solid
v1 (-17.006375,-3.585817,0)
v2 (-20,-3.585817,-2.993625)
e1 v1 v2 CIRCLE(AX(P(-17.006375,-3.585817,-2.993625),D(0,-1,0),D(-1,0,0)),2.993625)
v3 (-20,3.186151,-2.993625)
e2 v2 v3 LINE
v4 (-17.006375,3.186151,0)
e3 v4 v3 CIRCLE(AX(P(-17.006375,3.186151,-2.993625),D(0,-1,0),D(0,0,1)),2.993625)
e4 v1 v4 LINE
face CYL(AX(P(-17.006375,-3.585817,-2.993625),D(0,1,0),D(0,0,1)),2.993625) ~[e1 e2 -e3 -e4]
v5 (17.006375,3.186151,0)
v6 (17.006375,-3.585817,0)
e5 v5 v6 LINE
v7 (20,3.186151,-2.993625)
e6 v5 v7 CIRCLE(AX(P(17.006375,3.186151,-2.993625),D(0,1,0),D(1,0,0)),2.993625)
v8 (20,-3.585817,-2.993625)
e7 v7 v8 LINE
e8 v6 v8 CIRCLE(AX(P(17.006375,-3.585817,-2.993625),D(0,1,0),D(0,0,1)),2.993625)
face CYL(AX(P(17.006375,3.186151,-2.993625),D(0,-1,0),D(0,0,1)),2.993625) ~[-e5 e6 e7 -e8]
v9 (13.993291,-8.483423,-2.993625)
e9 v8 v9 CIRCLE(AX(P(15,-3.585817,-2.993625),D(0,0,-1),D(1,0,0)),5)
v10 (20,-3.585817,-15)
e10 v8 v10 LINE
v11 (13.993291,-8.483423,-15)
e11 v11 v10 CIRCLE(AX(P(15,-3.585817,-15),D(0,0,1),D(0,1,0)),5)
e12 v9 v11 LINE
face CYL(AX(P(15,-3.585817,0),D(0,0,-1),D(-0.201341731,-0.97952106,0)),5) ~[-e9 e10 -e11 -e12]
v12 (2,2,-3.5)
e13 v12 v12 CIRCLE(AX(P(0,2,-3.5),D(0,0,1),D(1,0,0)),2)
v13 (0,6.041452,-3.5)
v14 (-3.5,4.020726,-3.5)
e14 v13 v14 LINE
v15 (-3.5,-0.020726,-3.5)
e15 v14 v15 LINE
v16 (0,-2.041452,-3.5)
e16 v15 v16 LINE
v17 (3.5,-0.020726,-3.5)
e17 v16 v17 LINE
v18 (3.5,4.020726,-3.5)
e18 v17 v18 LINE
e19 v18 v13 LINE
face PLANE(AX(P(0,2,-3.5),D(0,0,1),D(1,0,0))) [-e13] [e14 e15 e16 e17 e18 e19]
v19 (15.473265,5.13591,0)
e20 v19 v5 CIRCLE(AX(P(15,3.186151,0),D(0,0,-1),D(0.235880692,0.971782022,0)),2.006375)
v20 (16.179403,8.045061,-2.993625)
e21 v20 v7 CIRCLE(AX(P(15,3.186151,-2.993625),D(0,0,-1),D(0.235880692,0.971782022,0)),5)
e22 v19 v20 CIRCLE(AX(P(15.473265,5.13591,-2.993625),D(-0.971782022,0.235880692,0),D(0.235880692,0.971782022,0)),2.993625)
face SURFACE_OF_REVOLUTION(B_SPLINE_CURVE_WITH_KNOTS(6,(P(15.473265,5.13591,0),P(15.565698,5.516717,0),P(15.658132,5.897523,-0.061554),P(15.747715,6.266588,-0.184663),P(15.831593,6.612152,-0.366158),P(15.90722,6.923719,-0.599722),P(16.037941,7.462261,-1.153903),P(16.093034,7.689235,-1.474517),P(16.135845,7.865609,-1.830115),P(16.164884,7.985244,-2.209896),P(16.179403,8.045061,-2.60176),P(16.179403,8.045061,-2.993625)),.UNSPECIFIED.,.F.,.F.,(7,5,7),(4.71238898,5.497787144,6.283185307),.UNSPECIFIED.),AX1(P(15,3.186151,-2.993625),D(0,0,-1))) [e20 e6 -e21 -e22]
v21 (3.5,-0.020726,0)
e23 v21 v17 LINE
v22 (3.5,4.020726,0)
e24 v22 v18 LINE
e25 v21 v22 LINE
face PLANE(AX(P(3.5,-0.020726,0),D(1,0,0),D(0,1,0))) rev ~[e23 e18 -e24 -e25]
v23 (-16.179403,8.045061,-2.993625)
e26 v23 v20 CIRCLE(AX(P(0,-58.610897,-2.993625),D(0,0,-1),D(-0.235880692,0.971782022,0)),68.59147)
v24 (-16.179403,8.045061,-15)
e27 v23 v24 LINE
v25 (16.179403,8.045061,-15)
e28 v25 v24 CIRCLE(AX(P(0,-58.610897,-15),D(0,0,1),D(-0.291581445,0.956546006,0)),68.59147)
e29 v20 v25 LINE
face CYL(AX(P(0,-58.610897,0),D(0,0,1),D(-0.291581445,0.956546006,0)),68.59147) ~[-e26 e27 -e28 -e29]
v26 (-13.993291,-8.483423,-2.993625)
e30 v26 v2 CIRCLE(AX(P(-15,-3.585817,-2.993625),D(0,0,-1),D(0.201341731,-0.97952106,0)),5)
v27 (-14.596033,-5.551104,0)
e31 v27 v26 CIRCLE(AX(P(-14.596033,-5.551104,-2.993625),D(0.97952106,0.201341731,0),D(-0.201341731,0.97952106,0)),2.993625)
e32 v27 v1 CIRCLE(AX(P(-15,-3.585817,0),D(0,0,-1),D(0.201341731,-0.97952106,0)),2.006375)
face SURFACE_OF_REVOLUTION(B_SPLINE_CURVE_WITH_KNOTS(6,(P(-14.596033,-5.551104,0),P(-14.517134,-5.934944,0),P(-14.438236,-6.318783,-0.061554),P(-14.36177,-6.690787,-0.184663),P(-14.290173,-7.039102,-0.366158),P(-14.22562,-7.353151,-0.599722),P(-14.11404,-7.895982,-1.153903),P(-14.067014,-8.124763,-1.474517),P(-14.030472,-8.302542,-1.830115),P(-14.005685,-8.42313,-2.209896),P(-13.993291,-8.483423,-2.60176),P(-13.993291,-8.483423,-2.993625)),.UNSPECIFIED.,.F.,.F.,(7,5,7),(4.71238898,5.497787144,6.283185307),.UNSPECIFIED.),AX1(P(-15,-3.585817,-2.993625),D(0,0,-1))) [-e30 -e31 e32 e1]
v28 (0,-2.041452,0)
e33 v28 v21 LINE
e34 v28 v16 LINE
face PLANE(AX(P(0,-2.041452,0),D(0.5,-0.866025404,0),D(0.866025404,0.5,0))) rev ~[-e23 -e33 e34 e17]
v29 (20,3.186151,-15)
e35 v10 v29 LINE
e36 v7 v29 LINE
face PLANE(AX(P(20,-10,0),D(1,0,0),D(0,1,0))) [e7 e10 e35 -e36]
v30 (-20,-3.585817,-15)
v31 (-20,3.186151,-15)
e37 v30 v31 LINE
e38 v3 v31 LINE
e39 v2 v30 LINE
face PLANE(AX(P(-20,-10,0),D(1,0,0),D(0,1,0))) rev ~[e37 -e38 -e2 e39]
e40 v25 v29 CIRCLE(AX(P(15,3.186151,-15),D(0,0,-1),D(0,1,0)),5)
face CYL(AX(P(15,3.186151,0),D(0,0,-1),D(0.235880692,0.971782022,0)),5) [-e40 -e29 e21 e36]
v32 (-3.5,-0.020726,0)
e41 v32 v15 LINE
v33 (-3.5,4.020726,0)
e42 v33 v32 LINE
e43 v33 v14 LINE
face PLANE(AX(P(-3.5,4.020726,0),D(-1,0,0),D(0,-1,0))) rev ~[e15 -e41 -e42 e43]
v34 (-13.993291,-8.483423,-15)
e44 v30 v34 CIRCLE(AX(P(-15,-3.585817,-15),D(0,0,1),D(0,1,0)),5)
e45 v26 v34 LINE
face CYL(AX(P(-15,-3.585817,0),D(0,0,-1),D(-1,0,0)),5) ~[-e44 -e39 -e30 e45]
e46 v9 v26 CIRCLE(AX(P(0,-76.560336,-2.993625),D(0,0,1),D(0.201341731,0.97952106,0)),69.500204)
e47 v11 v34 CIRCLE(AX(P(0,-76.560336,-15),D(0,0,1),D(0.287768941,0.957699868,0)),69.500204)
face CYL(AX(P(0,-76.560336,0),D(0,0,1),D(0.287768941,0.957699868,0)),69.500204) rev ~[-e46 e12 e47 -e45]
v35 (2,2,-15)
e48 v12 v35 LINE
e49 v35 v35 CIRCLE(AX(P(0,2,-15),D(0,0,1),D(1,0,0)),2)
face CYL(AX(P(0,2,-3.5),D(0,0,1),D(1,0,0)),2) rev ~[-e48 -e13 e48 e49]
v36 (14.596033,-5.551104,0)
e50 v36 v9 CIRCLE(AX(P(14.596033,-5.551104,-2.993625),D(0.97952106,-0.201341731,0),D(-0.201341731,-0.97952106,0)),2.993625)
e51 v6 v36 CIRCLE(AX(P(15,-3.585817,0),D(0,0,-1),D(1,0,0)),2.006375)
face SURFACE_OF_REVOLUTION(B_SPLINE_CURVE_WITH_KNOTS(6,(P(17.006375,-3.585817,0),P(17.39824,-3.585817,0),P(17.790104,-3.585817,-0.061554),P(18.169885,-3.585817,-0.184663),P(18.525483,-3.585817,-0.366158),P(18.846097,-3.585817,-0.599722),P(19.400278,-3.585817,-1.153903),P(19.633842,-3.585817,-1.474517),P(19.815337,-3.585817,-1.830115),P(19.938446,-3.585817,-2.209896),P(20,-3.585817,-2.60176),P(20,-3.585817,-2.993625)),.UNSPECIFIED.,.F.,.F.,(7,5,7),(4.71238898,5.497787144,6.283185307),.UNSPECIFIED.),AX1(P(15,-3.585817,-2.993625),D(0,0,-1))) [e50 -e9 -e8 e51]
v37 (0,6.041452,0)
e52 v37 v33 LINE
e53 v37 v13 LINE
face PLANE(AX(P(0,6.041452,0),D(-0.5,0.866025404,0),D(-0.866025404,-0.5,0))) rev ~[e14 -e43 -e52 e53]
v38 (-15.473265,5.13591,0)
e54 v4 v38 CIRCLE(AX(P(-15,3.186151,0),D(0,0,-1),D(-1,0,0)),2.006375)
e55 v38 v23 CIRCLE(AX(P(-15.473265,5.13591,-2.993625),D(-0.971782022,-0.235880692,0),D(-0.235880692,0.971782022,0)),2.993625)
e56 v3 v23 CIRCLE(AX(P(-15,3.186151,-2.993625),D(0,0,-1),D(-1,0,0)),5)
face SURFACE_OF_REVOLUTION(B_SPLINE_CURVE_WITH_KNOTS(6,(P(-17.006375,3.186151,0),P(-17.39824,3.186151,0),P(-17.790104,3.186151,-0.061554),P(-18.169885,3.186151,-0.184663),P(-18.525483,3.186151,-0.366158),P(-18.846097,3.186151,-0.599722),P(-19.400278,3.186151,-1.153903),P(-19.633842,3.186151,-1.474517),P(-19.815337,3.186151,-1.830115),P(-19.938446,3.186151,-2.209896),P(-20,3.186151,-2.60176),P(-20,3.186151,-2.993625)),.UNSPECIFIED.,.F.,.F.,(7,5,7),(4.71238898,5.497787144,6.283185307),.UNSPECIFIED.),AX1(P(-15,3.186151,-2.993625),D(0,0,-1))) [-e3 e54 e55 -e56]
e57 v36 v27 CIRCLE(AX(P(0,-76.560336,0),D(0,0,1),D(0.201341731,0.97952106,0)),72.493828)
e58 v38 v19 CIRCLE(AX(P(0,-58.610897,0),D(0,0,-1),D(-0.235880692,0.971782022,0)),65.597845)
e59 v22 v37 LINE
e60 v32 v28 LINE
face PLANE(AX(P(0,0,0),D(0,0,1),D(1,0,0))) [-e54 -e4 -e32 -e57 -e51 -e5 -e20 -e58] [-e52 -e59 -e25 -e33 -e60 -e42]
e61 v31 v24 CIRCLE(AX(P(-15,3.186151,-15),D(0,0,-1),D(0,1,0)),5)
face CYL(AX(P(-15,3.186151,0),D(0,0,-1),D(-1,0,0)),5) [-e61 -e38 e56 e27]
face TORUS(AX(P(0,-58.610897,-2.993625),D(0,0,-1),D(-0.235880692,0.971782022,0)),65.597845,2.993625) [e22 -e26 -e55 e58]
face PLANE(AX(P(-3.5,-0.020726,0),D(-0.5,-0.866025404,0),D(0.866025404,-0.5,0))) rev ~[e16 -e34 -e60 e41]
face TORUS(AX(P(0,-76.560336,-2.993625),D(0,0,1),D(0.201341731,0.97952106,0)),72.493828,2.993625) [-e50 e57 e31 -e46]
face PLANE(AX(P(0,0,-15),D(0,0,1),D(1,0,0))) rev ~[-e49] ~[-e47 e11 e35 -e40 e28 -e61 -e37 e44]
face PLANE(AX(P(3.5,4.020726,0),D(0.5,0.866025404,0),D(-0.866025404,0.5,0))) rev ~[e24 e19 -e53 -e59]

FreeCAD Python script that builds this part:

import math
import FreeCAD as App
import Part
import Sketcher
Q = App.Units.Quantity


def edges_at(feature, points):
    """Names of the edges that pass closest to the given points."""
    edges = feature.Shape.Edges
    near = lambda p: min(range(len(edges)), key=lambda i: edges[i].distToShape(Part.Vertex(*p))[0])
    return sorted({f"Edge{near(p) + 1}" for p in points})


def add_polygon(sketch, points):
    """Adds a closed chain of lines whose ends are joined by coincident constraints."""
    first, n = sketch.GeometryCount, len(points)
    for a, b in zip(points, points[1:] + points[:1]):
        sketch.addGeometry(Part.LineSegment(App.Vector(*a, 0), App.Vector(*b, 0)), False)
    for i in range(n):
        sketch.addConstraint(Sketcher.Constraint("Coincident", first + i, 2, first + (i + 1) % n, 1))

doc = App.newDocument("Part")
body = doc.addObject("PartDesign::Body", "Body")

sketch1 = doc.addObject("Sketcher::SketchObject", "Sketch")
body.addObject(sketch1)
sketch1.AttachmentSupport = (doc.XY_Plane, [""])
sketch1.MapMode = "FlatFace"
add_polygon(sketch1, [(-20, 10), (-20, -10), (20, -10), (20, 10)])
sketch1.addConstraint([
    Sketcher.Constraint("Vertical", 0),
    Sketcher.Constraint("Horizontal", 1),
    Sketcher.Constraint("Vertical", 2),
    Sketcher.Constraint("Horizontal", 3),
    Sketcher.Constraint("Symmetric", 0, 2, 2, 2, -1, 1),
    Sketcher.Constraint("DistanceX", 1, 1, 1, 2, 40.0),
    Sketcher.Constraint("DistanceY", 0, 2, 0, 1, 20.0),
])
pad1 = doc.addObject("PartDesign::Pad", "Pad")
body.addObject(pad1)
pad1.Profile = sketch1
pad1.Length = 15
pad1.Reversed = True

sketch2 = doc.addObject("Sketcher::SketchObject", "Sketch001")
body.addObject(sketch2)
sketch2.AttachmentSupport = (doc.XY_Plane, [""])
sketch2.MapMode = "FlatFace"
add_polygon(sketch2, [(3.5, 0), (3.5, 4), (0, 6), (-3.5, 4), (-3.5, 0), (0, -2)])
sketch2.addConstraint([
    Sketcher.Constraint("Vertical", 0),
    Sketcher.Constraint("Vertical", 3),
    Sketcher.Constraint("Symmetric", 0, 2, 2, 2, -2),
    Sketcher.Constraint("PointOnObject", 1, 2, -2),
    Sketcher.Constraint("PointOnObject", 4, 2, -2),
    Sketcher.Constraint("Parallel", 1, 4),
    Sketcher.Constraint("Parallel", 2, 5),
    Sketcher.Constraint("Angle", 1, Q("150 deg")),
    Sketcher.Constraint("DistanceX", 2, 2, 0, 2, 7.0),
    Sketcher.Constraint("DistanceY", 0, 1, 0, 2, 4.041452),
    Sketcher.Constraint("DistanceY", -1, 1, 1, 2, 6.041452),
])
pocket1 = doc.addObject("PartDesign::Pocket", "Pocket")
body.addObject(pocket1)
pocket1.Profile = sketch2
pocket1.Length = 3.5

sketch3 = doc.addObject("Sketcher::SketchObject", "Sketch002")
body.addObject(sketch3)
sketch3.AttachmentSupport = (doc.XY_Plane, [""])
sketch3.MapMode = "FlatFace"
sketch3.addGeometry([
    Part.ArcOfCircle(Part.Circle(App.Vector(0, -58.6, 0), App.Vector(0, 0, 1), 68.6), math.radians(73), math.radians(107)),
    Part.LineSegment(App.Vector(20, 7, 0), App.Vector(20, 10, 0)),
    Part.LineSegment(App.Vector(20, 10, 0), App.Vector(-20, 10, 0)),
    Part.LineSegment(App.Vector(-20, 10, 0), App.Vector(-20, 7, 0)),
    Part.LineSegment(App.Vector(-20, -10, 0), App.Vector(20, -10, 0)),
    Part.ArcOfCircle(Part.Circle(App.Vector(0, -76.6, 0), App.Vector(0, 0, 1), 69.5), math.radians(73), math.radians(107)),
], False)
sketch3.addConstraint([
    Sketcher.Constraint("Coincident", 0, 1, 1, 1),
    Sketcher.Constraint("Coincident", 1, 2, 2, 1),
    Sketcher.Constraint("Coincident", 2, 2, 3, 1),
    Sketcher.Constraint("Coincident", 3, 2, 0, 2),
    Sketcher.Constraint("Coincident", 4, 1, 5, 2),
    Sketcher.Constraint("Coincident", 5, 1, 4, 2),
    Sketcher.Constraint("Vertical", 1),
    Sketcher.Constraint("Horizontal", 2),
    Sketcher.Constraint("Vertical", 3),
    Sketcher.Constraint("Horizontal", 4),
    Sketcher.Constraint("Symmetric", 1, 2, 4, 1, -1, 1),
    Sketcher.Constraint("Symmetric", 0, 1, 3, 2, -2),
    Sketcher.Constraint("PointOnObject", 5, 3, -2),
    Sketcher.Constraint("DistanceX", 2, 2, 2, 1, 40.0),
    Sketcher.Constraint("DistanceY", 1, 1, 1, 2, 3.0),
    Sketcher.Constraint("DistanceY", -1, 1, 0, 1, 7.0),
    Sketcher.Constraint("Radius", 0, 68.59147),
    Sketcher.Constraint("Radius", 5, 69.500204),
])
pocket2 = doc.addObject("PartDesign::Pocket", "Pocket001")
body.addObject(pocket2)
pocket2.Profile = sketch3
pocket2.Type = "ThroughAll"

sketch4 = doc.addObject("Sketcher::SketchObject", "Sketch003")
body.addObject(sketch4)
sketch4.AttachmentSupport = (doc.XY_Plane, [""])
sketch4.MapMode = "FlatFace"
sketch4.AttachmentOffset = App.Placement(App.Vector(0, 0, -3.5), App.Rotation())
sketch4.addGeometry(Part.Circle(App.Vector(0, 2, 0), App.Vector(0, 0, 1), 2), False)
sketch4.addConstraint([
    Sketcher.Constraint("PointOnObject", 0, 3, -2),
    Sketcher.Constraint("Diameter", 0, 4.0),
    Sketcher.Constraint("DistanceY", -1, 1, 0, 3, 2.0),
])
pocket3 = doc.addObject("PartDesign::Pocket", "Pocket002")
body.addObject(pocket3)
pocket3.Profile = sketch4
pocket3.Type = "ThroughAll"
doc.recompute()

fillet = doc.addObject("PartDesign::Fillet", "Fillet")
body.addObject(fillet)
fillet.Base = (pocket3, edges_at(pocket3, [
    (-20, 7, -7.5),
    (20, 7, -7.5),
    (-20, -10, -7.5),
    (20, -10, -7.5),
]))
fillet.Radius = 5
doc.recompute()

fillet2 = doc.addObject("PartDesign::Fillet", "Fillet001")
body.addObject(fillet2)
fillet2.Base = (fillet, edges_at(fillet, [
    (0, 9.981, 0),
    (-20, -0.2, 0),
    (20, -0.2, 0),
    (0, -7.06, 0),
]))
fillet2.Radius = 2.993625

doc.recompute()
